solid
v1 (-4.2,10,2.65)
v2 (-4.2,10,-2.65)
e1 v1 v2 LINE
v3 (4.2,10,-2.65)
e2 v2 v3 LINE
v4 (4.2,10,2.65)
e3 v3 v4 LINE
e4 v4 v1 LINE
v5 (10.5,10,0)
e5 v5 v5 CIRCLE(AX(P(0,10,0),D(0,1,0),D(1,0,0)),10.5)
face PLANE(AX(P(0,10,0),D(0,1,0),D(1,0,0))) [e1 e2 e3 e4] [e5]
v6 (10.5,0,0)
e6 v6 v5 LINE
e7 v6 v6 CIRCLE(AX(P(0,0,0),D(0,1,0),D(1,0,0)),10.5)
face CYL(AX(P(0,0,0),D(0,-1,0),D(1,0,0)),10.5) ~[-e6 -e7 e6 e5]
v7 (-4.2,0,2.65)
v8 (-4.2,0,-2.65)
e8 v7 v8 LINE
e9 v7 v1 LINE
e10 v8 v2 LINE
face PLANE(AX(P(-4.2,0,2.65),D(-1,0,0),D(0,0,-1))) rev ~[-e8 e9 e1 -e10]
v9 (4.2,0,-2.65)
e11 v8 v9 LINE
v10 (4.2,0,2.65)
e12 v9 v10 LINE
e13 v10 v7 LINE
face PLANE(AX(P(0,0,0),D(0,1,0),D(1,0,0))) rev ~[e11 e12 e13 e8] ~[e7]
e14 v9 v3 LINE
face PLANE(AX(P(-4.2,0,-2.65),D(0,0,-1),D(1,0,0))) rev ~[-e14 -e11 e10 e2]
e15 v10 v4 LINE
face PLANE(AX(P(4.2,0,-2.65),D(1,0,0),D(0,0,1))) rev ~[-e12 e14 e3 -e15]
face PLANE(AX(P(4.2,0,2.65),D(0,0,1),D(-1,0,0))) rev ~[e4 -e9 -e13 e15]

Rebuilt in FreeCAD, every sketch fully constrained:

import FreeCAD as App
import Part
import Sketcher

V = App.Vector
Q = App.Units.Quantity

doc = App.newDocument("Part")
body = doc.addObject("PartDesign::Body", "Body")

# Sketch on XZ plane
sketch1 = body.newObject("Sketcher::SketchObject", "Sketch")
sketch1.AttachmentSupport = (doc.getObject("XZ_Plane"), [""])
sketch1.MapMode = "FlatFace"
sketch1.addGeometry(Part.Circle(V(0, 0, 0), V(0, 0, 1), 10.5), False)
sketch1.addGeometry(Part.LineSegment(V(4.2, -2.65, 0), V(4.2, 2.65, 0)), False)
sketch1.addGeometry(Part.LineSegment(V(4.2, 2.65, 0), V(-4.2, 2.65, 0)), False)
sketch1.addGeometry(Part.LineSegment(V(-4.2, 2.65, 0), V(-4.2, -2.65, 0)), False)
sketch1.addGeometry(Part.LineSegment(V(-4.2, -2.65, 0), V(4.2, -2.65, 0)), False)
sketch1.addConstraint(Sketcher.Constraint("Coincident", 1, 2, 2, 1))
sketch1.addConstraint(Sketcher.Constraint("Coincident", 2, 2, 3, 1))
sketch1.addConstraint(Sketcher.Constraint("Coincident", 3, 2, 4, 1))
sketch1.addConstraint(Sketcher.Constraint("Coincident", 4, 2, 1, 1))
sketch1.addConstraint(Sketcher.Constraint("Vertical", 1))
sketch1.addConstraint(Sketcher.Constraint("Horizontal", 2))
sketch1.addConstraint(Sketcher.Constraint("Vertical", 3))
sketch1.addConstraint(Sketcher.Constraint("Horizontal", 4))
sketch1.addConstraint(Sketcher.Constraint("Coincident", 0, 3, -1, 1))
sketch1.addConstraint(Sketcher.Constraint("Symmetric", 1, 2, 3, 2, -1, 1))
sketch1.addConstraint(Sketcher.Constraint("Diameter", 0, Q("21 mm")))
sketch1.addConstraint(Sketcher.Constraint("DistanceX", 2, 2, 2, 1, Q("8.4 mm")))
sketch1.addConstraint(Sketcher.Constraint("DistanceY", 1, 1, 1, 2, Q("5.3 mm")))
pad1 = body.newObject("PartDesign::Pad", "Pad")
pad1.Profile = sketch1
pad1.Length = 10
pad1.Reversed = True

doc.recompute()
